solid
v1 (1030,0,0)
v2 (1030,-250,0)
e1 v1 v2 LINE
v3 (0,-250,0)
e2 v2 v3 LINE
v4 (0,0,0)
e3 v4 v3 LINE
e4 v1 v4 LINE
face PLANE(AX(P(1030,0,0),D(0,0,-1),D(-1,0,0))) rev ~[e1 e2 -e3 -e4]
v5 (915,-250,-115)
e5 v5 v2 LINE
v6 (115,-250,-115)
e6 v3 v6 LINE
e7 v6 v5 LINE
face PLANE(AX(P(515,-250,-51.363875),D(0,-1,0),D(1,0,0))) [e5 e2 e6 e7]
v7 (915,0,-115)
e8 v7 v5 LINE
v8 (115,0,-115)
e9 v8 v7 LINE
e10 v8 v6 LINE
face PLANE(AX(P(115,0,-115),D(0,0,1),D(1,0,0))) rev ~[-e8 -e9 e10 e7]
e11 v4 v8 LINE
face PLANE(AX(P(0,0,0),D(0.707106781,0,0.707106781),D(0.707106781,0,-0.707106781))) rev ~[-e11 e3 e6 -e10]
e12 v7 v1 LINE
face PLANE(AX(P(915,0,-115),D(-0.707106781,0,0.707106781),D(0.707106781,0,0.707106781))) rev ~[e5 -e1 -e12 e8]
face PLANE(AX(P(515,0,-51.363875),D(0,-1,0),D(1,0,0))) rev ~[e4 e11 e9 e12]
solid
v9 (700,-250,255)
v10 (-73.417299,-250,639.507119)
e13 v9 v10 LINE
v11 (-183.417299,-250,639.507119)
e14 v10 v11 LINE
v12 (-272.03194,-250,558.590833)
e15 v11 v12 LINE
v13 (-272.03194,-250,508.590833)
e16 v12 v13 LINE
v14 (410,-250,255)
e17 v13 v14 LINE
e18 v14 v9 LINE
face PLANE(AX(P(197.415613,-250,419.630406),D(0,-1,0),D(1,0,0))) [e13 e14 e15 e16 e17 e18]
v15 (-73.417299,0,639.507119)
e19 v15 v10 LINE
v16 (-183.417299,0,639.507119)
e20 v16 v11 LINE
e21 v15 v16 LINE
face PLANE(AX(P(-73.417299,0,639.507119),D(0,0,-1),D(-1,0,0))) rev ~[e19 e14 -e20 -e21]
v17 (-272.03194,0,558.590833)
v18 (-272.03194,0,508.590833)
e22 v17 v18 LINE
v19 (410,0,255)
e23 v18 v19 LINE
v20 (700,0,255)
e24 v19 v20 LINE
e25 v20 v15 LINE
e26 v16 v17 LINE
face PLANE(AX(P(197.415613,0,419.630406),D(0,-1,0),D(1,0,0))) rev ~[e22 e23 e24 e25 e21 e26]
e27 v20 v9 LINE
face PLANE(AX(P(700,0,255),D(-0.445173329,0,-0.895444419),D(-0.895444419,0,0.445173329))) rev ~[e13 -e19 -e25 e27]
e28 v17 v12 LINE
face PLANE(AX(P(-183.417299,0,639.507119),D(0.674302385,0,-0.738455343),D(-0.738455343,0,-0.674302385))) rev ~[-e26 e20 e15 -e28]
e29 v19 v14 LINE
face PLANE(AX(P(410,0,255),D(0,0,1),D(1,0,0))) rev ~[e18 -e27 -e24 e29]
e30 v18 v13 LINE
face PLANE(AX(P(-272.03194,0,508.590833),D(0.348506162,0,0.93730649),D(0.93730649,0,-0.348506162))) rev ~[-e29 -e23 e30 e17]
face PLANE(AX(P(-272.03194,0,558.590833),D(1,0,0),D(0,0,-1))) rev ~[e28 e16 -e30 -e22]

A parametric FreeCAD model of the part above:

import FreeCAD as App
import Part
import Sketcher
Q = App.Units.Quantity

doc = App.newDocument("Part")
params = doc.addObject("Spreadsheet::Sheet", "Params")
for row, (alias, value) in enumerate([
    ("sketch1_width", "1030 mm"),
    ("sketch1_width2", "800 mm"),
    ("sketch1_width3", "290 mm"),
    ("sketch1_width4", "110 mm"),
    ("sketch1_height", "50 mm"),
    ("pad1_length", "250 mm"),
], start=1):
    params.set(f"A{row}", alias)
    params.set(f"B{row}", "=" + value)
    params.setAlias(f"B{row}", alias)

body = doc.addObject("PartDesign::Body", "Body")
body.AllowCompound = True

sketch1 = body.newObject("Sketcher::SketchObject", "Sketch")
sketch1.AttachmentSupport = (doc.getObject("XZ_Plane"), [""])
sketch1.MapMode = "FlatFace"
sketch1.addGeometry([
    Part.LineSegment(App.Vector(1030, 0, 0), App.Vector(0, 0, 0)),
    Part.LineSegment(App.Vector(0, 0, 0), App.Vector(115, -115, 0)),
    Part.LineSegment(App.Vector(115, -115, 0), App.Vector(915, -115, 0)),
    Part.LineSegment(App.Vector(915, -115, 0), App.Vector(1030, 0, 0)),
    Part.LineSegment(App.Vector(-272.03194, 508.590833, 0), App.Vector(410, 255, 0)),
    Part.LineSegment(App.Vector(410, 255, 0), App.Vector(700, 255, 0)),
    Part.LineSegment(App.Vector(700, 255, 0), App.Vector(-73.417299, 639.507119, 0)),
    Part.LineSegment(App.Vector(-73.417299, 639.507119, 0), App.Vector(-183.417299, 639.507119, 0)),
    Part.LineSegment(App.Vector(-183.417299, 639.507119, 0), App.Vector(-272.03194, 558.590833, 0)),
    Part.LineSegment(App.Vector(-272.03194, 558.590833, 0), App.Vector(-272.03194, 508.590833, 0)),
], False)
sketch1.addConstraint([
    Sketcher.Constraint("Coincident", 0, 2, 1, 1),
    Sketcher.Constraint("Coincident", 1, 2, 2, 1),
    Sketcher.Constraint("Coincident", 2, 2, 3, 1),
    Sketcher.Constraint("Coincident", 3, 2, 0, 1),
    Sketcher.Constraint("Coincident", 4, 2, 5, 1),
    Sketcher.Constraint("Coincident", 5, 2, 6, 1),
    Sketcher.Constraint("Coincident", 6, 2, 7, 1),
    Sketcher.Constraint("Coincident", 7, 2, 8, 1),
    Sketcher.Constraint("Coincident", 8, 2, 9, 1),
    Sketcher.Constraint("Coincident", 9, 2, 4, 1),
    Sketcher.Constraint("Horizontal", 0),
    Sketcher.Constraint("Horizontal", 2),
    Sketcher.Constraint("Horizontal", 5),
    Sketcher.Constraint("Horizontal", 7),
    Sketcher.Constraint("Vertical", 9),
    Sketcher.Constraint("Coincident", 0, 2, -1, 1),
    Sketcher.Constraint("Perpendicular", 1, 3),
    Sketcher.Constraint("Equal", 1, 3),
    Sketcher.Constraint("DistanceX", 0, 2, 0, 1, Q("1030 mm")),
    Sketcher.Constraint("DistanceX", 2, 1, 2, 2, Q("800 mm")),
    Sketcher.Constraint("DistanceX", 5, 1, 5, 2, Q("290 mm")),
    Sketcher.Constraint("DistanceX", 7, 2, 7, 1, Q("110 mm")),
    Sketcher.Constraint("DistanceY", 9, 2, 9, 1, Q("50 mm")),
    Sketcher.Constraint("Distance", 8, Q("120 mm")),
    Sketcher.Constraint("DistanceX", -1, 1, 4, 2, Q("410 mm")),
    Sketcher.Constraint("DistanceY", -1, 1, 4, 2, Q("255 mm")),
    Sketcher.Constraint("Angle", 8, Q("-137.6 deg")),
    Sketcher.Constraint("DistanceX", 6, 2, -1, 1, Q("73.417299 mm")),
    Sketcher.Constraint("Distance", 4, Q("727.650931 mm")),
])
sketch1.setExpression("Constraints[18]", "Params.sketch1_width")
sketch1.setExpression("Constraints[19]", "Params.sketch1_width2")
sketch1.setExpression("Constraints[20]", "Params.sketch1_width3")
sketch1.setExpression("Constraints[21]", "Params.sketch1_width4")
sketch1.setExpression("Constraints[22]", "Params.sketch1_height")
pad1 = body.newObject("PartDesign::Pad", "Pad")
pad1.Profile = sketch1
pad1.setExpression("Length", "Params.pad1_length")

doc.recompute()
